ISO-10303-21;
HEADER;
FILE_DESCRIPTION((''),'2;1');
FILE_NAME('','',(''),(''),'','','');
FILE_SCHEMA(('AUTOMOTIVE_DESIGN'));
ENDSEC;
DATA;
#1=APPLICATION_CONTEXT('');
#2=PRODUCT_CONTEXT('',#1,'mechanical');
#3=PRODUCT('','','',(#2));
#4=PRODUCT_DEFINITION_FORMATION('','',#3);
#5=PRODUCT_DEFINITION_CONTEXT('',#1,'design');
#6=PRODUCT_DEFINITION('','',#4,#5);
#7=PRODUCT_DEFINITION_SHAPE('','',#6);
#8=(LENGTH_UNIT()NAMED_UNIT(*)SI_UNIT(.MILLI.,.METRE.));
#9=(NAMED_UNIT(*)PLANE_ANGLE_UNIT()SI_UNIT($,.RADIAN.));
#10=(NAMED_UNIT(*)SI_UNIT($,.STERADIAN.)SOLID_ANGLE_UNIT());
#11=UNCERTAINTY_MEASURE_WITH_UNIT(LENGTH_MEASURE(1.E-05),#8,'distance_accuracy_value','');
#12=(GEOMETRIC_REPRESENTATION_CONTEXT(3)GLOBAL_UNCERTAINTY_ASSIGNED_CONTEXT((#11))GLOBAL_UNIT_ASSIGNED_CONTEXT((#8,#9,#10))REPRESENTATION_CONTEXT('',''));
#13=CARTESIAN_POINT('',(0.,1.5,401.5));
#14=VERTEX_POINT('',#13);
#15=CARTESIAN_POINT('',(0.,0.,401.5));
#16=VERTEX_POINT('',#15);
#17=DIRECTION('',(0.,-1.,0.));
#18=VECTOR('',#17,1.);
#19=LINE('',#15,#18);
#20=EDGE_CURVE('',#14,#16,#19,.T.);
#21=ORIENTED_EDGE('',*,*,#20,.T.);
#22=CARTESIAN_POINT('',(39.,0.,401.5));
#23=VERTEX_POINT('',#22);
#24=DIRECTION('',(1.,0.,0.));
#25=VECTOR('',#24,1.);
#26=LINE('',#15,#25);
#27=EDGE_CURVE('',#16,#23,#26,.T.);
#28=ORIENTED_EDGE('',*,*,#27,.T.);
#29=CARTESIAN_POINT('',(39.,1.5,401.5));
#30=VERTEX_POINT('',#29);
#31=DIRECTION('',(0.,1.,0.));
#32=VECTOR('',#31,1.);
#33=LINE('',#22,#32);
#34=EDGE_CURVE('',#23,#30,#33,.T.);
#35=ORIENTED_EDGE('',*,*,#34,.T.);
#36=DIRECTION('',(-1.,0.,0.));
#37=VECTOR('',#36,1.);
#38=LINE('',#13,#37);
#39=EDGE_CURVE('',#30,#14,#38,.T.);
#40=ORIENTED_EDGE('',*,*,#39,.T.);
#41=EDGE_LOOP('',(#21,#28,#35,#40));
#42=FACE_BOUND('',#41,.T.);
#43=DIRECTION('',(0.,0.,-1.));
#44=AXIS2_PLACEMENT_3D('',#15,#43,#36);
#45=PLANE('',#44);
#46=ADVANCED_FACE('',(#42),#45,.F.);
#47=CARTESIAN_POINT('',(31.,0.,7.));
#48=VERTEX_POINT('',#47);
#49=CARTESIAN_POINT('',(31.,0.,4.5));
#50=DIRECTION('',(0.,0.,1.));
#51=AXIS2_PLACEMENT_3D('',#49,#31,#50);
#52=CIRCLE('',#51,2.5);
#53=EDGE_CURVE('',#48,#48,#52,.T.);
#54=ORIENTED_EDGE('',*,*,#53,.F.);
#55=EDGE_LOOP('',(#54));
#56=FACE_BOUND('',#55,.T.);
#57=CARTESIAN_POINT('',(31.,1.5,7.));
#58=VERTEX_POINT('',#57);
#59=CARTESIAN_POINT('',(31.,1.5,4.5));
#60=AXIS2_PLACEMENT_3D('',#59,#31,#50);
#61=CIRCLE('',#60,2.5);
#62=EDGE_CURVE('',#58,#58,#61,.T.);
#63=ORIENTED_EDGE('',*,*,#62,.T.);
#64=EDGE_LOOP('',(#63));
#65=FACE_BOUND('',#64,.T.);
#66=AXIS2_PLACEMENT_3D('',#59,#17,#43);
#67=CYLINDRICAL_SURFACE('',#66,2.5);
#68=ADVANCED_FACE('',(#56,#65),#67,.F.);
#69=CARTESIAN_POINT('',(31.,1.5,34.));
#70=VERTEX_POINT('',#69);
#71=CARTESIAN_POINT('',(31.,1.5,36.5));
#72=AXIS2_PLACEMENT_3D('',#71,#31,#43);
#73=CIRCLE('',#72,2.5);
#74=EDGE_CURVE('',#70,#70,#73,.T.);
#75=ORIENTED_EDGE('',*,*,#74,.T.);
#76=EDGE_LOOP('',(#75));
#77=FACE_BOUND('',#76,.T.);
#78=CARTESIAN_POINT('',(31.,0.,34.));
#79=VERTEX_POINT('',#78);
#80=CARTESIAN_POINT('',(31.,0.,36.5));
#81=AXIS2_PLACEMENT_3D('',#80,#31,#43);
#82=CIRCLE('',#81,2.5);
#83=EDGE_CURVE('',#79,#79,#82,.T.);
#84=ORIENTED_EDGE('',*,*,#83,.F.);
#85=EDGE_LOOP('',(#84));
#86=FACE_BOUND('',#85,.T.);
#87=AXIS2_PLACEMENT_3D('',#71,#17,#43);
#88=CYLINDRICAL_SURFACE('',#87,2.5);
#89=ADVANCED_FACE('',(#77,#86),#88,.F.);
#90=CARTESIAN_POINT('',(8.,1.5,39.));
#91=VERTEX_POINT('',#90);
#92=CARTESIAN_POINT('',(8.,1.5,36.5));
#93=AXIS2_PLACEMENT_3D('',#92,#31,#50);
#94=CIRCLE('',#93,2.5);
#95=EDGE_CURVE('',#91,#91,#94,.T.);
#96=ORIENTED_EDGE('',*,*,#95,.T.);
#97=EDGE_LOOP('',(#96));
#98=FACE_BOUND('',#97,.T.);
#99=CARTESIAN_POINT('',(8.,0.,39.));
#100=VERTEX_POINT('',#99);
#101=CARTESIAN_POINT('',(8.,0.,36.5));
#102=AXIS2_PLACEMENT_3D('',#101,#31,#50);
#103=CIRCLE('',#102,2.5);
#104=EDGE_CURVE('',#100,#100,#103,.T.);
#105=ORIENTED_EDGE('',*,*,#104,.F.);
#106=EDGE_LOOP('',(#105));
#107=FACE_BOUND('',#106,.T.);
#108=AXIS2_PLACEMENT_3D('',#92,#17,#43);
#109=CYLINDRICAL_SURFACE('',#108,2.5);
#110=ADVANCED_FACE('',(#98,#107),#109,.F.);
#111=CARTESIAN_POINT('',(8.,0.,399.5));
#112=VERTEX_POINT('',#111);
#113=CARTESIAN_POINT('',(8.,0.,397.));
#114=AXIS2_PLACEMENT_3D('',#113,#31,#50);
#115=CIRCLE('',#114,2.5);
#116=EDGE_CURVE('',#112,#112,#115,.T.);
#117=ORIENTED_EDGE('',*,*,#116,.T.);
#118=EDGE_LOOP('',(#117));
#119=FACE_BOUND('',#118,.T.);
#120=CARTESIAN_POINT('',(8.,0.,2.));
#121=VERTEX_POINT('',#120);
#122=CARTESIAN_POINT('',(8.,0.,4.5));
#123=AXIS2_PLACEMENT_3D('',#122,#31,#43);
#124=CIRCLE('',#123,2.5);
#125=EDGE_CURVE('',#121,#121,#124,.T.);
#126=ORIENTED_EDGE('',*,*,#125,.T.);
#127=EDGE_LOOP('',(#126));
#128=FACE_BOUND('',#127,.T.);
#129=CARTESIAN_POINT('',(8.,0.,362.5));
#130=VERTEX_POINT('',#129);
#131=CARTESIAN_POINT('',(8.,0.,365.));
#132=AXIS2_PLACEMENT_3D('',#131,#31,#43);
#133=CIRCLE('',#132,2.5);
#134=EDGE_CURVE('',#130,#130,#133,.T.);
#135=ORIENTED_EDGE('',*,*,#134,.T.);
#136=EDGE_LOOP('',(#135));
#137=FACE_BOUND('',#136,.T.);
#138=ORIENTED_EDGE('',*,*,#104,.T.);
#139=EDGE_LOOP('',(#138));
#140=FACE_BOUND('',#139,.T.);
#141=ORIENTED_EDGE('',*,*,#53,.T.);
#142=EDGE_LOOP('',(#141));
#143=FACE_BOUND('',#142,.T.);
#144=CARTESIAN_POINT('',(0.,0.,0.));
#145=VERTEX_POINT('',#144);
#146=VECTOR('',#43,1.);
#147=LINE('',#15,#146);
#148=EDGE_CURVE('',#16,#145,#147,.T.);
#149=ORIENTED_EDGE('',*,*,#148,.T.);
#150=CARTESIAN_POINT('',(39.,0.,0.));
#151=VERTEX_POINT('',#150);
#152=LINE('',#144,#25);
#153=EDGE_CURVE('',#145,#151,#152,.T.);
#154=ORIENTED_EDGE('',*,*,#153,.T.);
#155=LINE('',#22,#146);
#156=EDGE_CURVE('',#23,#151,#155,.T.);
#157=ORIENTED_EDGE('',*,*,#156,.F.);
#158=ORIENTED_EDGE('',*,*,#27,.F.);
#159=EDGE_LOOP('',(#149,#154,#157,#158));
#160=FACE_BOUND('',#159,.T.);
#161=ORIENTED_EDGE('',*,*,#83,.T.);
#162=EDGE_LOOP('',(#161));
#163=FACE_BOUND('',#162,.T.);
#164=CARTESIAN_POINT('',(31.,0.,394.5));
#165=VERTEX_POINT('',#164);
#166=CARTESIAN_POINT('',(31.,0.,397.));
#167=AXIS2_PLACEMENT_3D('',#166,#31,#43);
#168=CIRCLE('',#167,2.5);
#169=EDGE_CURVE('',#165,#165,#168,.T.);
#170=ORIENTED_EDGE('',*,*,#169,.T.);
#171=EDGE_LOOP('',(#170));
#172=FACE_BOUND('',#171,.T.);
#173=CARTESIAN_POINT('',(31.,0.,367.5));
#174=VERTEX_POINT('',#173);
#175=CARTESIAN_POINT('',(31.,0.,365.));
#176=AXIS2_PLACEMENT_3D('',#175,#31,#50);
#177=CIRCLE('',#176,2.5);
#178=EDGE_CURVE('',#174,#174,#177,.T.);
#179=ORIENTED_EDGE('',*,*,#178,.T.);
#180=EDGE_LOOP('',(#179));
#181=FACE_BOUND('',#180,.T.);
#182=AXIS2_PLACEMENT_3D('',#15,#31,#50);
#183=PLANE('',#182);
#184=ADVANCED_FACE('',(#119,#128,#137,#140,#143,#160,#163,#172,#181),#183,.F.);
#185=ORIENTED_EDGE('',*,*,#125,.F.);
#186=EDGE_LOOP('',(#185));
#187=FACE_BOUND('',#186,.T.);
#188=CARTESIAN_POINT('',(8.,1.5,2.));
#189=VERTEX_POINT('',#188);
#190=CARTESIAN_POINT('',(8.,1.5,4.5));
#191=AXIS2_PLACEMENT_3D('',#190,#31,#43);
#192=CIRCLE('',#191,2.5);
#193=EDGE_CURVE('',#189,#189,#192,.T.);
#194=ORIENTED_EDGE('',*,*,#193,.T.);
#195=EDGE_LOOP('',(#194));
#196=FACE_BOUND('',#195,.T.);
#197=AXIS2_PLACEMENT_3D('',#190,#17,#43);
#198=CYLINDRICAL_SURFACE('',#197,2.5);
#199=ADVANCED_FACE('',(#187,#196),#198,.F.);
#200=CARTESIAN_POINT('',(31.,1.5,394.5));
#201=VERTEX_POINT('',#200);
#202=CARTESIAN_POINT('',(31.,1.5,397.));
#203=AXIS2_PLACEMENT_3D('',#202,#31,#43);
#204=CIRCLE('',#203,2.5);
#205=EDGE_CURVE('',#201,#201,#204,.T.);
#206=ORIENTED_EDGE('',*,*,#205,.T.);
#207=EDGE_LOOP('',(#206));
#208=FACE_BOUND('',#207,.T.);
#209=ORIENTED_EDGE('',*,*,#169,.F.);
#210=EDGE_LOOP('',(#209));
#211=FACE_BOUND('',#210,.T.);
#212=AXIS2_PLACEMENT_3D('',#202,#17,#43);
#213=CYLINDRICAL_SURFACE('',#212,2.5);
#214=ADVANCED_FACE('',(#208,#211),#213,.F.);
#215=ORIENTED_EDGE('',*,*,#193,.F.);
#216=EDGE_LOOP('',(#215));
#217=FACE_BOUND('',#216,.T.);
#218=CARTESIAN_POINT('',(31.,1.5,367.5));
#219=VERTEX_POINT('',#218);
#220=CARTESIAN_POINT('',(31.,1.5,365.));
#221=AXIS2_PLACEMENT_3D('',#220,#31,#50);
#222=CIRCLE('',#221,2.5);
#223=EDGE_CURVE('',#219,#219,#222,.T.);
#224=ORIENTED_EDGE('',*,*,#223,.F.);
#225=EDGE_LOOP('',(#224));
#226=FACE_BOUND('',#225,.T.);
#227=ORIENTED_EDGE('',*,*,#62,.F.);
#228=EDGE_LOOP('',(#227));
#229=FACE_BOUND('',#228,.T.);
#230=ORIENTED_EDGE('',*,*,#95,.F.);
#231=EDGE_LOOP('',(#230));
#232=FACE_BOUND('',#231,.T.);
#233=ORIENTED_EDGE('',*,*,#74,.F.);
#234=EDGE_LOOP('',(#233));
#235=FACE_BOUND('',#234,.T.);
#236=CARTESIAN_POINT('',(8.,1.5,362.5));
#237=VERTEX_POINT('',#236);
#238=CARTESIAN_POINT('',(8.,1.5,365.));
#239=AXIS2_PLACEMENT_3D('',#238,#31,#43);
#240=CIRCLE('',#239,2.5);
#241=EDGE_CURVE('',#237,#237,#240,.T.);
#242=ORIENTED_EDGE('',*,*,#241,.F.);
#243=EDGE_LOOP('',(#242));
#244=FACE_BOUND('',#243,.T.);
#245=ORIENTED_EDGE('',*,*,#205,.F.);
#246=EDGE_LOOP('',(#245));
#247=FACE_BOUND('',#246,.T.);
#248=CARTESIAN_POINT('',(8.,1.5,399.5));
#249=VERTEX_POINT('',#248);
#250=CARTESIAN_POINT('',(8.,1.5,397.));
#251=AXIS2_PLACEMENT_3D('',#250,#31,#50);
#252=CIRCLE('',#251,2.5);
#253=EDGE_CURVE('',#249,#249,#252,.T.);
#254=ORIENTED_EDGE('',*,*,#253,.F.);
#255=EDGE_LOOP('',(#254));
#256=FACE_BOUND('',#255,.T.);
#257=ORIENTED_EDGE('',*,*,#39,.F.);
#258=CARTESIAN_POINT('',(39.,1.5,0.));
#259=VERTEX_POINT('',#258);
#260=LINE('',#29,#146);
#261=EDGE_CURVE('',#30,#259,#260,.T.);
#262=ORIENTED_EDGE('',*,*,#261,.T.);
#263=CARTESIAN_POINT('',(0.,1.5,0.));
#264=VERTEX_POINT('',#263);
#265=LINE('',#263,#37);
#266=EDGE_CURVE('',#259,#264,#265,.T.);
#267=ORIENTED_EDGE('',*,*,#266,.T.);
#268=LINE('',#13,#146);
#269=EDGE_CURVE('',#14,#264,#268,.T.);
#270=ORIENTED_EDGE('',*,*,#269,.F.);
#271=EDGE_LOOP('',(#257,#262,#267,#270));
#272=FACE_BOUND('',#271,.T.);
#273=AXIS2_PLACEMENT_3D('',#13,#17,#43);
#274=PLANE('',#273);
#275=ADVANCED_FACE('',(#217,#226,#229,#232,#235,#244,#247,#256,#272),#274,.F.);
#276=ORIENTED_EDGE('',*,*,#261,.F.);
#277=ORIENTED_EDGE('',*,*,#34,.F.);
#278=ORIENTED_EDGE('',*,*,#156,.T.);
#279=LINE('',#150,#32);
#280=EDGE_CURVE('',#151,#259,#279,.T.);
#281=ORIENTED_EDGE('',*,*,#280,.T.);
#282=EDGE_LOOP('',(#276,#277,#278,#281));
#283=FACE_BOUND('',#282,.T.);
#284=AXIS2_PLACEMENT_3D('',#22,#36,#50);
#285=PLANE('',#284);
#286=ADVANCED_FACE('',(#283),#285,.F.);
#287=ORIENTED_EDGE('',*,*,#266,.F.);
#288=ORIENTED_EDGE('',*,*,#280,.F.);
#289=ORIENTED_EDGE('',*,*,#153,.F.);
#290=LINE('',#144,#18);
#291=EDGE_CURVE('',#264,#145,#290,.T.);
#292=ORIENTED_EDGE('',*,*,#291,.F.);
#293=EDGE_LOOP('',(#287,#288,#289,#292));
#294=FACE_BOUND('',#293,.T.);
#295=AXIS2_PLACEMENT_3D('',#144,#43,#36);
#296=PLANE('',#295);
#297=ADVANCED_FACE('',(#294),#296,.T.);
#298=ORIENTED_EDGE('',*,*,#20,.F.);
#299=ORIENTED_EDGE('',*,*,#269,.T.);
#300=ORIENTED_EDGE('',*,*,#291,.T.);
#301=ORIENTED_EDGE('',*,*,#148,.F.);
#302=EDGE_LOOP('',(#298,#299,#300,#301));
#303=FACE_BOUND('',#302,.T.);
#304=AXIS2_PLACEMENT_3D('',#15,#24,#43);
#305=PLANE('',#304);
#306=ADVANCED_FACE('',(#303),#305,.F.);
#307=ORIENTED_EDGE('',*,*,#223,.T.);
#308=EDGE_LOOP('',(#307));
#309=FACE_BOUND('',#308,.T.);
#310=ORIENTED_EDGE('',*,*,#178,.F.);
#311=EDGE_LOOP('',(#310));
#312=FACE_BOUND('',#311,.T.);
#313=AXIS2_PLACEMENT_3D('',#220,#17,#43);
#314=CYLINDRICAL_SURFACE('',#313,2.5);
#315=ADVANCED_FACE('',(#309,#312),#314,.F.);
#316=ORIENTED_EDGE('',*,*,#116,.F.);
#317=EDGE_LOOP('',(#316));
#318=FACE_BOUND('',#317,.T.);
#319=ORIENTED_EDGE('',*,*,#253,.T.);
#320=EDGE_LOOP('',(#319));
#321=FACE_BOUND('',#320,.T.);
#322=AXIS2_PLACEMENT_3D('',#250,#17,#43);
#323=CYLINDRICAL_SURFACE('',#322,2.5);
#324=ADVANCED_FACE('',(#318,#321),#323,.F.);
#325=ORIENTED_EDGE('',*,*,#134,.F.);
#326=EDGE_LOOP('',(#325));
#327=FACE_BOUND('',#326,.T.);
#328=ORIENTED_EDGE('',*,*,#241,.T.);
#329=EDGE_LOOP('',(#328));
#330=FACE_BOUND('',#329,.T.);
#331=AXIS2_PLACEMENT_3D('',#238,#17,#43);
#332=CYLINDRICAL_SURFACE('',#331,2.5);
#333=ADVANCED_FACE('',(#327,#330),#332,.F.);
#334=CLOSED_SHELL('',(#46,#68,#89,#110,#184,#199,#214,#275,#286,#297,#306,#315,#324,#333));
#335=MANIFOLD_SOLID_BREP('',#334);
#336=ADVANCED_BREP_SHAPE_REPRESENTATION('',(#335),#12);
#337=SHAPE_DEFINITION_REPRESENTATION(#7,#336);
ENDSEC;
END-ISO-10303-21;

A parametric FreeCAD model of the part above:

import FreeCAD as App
import Part
import Sketcher
from FreeCAD import Vector
Q = App.Units.Quantity


def add_polygon(sketch, points):
    """Adds a closed chain of lines whose ends are joined by coincident constraints."""
    first, n = sketch.GeometryCount, len(points)
    for a, b in zip(points, points[1:] + points[:1]):
        sketch.addGeometry(Part.LineSegment(App.Vector(*a, 0), App.Vector(*b, 0)), False)
    for i in range(n):
        sketch.addConstraint(Sketcher.Constraint("Coincident", first + i, 2, first + (i + 1) % n, 1))

doc = App.newDocument("Part")
body = doc.addObject("PartDesign::Body", "Body")

# Sketch on XY plane
sketch1 = body.newObject("Sketcher::SketchObject", "Sketch")
sketch1.AttachmentSupport = (doc.getObject("XY_Plane"), [""])
sketch1.MapMode = "FlatFace"
add_polygon(sketch1, [(0, 1.5), (0, 0), (39, 0), (39, 1.5)])  # lines 0-3
sketch1.addConstraint(Sketcher.Constraint("Vertical", 0))
sketch1.addConstraint(Sketcher.Constraint("Horizontal", 1))
sketch1.addConstraint(Sketcher.Constraint("Vertical", 2))
sketch1.addConstraint(Sketcher.Constraint("Horizontal", 3))
sketch1.addConstraint(Sketcher.Constraint("Coincident", 0, 2, -1, 1))
sketch1.addConstraint(Sketcher.Constraint("DistanceX", 1, 1, 1, 2, Q("39 mm")))
sketch1.addConstraint(Sketcher.Constraint("DistanceY", 0, 2, 0, 1, Q("1.5 mm")))
pad1 = body.newObject("PartDesign::Pad", "Pad")
pad1.Profile = sketch1
pad1.Length = 401.5

# Sketch on XZ plane
sketch2 = body.newObject("Sketcher::SketchObject", "Sketch001")
sketch2.AttachmentSupport = (doc.getObject("XZ_Plane"), [""])
sketch2.MapMode = "FlatFace"
sketch2.addGeometry(Part.Circle(Vector(8, 397, 0), Vector(0, 0, 1), 2.5), False)
sketch2.addGeometry(Part.Circle(Vector(31, 365, 0), Vector(0, 0, 1), 2.5), False)
sketch2.addGeometry(Part.Circle(Vector(31, 36.5, 0), Vector(0, 0, 1), 2.5), False)
sketch2.addGeometry(Part.Circle(Vector(8, 4.5, 0), Vector(0, 0, 1), 2.5), False)
sketch2.addGeometry(Part.Circle(Vector(8, 36.5, 0), Vector(0, 0, 1), 2.5), False)
sketch2.addGeometry(Part.Circle(Vector(31, 4.5, 0), Vector(0, 0, 1), 2.5), False)
sketch2.addGeometry(Part.Circle(Vector(8, 365, 0), Vector(0, 0, 1), 2.5), False)
sketch2.addGeometry(Part.Circle(Vector(31, 397, 0), Vector(0, 0, 1), 2.5), False)
sketch2.addConstraint(Sketcher.Constraint("Equal", 0, 1))
sketch2.addConstraint(Sketcher.Constraint("Equal", 1, 2))
sketch2.addConstraint(Sketcher.Constraint("Equal", 2, 3))
sketch2.addConstraint(Sketcher.Constraint("Equal", 3, 4))
sketch2.addConstraint(Sketcher.Constraint("Equal", 4, 5))
sketch2.addConstraint(Sketcher.Constraint("Equal", 5, 6))
sketch2.addConstraint(Sketcher.Constraint("Equal", 6, 7))
sketch2.addConstraint(Sketcher.Constraint("Horizontal", 2, 3, 4, 3))
sketch2.addConstraint(Sketcher.Constraint("Horizontal", 3, 3, 5, 3))
sketch2.addConstraint(Sketcher.Constraint("Horizontal", 1, 3, 6, 3))
sketch2.addConstraint(Sketcher.Constraint("Horizontal", 0, 3, 7, 3))
sketch2.addConstraint(Sketcher.Constraint("Vertical", 1, 3, 2, 3))
sketch2.addConstraint(Sketcher.Constraint("Vertical", 0, 3, 3, 3))
sketch2.addConstraint(Sketcher.Constraint("Vertical", 3, 3, 4, 3))
sketch2.addConstraint(Sketcher.Constraint("Vertical", 2, 3, 5, 3))
sketch2.addConstraint(Sketcher.Constraint("Vertical", 4, 3, 6, 3))
sketch2.addConstraint(Sketcher.Constraint("Vertical", 5, 3, 7, 3))
sketch2.addConstraint(Sketcher.Constraint("Diameter", 0, Q("5 mm")))
sketch2.addConstraint(Sketcher.Constraint("DistanceX", -1, 1, 0, 3, Q("8 mm")))
sketch2.addConstraint(Sketcher.Constraint("DistanceY", -1, 1, 0, 3, Q("397 mm")))
sketch2.addConstraint(Sketcher.Constraint("DistanceX", -1, 1, 1, 3, Q("31 mm")))
sketch2.addConstraint(Sketcher.Constraint("DistanceY", -1, 1, 1, 3, Q("365 mm")))
sketch2.addConstraint(Sketcher.Constraint("DistanceY", 3, 3, 2, 3, Q("32 mm")))
sketch2.addConstraint(Sketcher.Constraint("DistanceY", -1, 1, 2, 3, Q("36.5 mm")))
pocket1 = body.newObject("PartDesign::Pocket", "Pocket")
pocket1.Profile = sketch2
pocket1.Type = "ThroughAll"

doc.recompute()
